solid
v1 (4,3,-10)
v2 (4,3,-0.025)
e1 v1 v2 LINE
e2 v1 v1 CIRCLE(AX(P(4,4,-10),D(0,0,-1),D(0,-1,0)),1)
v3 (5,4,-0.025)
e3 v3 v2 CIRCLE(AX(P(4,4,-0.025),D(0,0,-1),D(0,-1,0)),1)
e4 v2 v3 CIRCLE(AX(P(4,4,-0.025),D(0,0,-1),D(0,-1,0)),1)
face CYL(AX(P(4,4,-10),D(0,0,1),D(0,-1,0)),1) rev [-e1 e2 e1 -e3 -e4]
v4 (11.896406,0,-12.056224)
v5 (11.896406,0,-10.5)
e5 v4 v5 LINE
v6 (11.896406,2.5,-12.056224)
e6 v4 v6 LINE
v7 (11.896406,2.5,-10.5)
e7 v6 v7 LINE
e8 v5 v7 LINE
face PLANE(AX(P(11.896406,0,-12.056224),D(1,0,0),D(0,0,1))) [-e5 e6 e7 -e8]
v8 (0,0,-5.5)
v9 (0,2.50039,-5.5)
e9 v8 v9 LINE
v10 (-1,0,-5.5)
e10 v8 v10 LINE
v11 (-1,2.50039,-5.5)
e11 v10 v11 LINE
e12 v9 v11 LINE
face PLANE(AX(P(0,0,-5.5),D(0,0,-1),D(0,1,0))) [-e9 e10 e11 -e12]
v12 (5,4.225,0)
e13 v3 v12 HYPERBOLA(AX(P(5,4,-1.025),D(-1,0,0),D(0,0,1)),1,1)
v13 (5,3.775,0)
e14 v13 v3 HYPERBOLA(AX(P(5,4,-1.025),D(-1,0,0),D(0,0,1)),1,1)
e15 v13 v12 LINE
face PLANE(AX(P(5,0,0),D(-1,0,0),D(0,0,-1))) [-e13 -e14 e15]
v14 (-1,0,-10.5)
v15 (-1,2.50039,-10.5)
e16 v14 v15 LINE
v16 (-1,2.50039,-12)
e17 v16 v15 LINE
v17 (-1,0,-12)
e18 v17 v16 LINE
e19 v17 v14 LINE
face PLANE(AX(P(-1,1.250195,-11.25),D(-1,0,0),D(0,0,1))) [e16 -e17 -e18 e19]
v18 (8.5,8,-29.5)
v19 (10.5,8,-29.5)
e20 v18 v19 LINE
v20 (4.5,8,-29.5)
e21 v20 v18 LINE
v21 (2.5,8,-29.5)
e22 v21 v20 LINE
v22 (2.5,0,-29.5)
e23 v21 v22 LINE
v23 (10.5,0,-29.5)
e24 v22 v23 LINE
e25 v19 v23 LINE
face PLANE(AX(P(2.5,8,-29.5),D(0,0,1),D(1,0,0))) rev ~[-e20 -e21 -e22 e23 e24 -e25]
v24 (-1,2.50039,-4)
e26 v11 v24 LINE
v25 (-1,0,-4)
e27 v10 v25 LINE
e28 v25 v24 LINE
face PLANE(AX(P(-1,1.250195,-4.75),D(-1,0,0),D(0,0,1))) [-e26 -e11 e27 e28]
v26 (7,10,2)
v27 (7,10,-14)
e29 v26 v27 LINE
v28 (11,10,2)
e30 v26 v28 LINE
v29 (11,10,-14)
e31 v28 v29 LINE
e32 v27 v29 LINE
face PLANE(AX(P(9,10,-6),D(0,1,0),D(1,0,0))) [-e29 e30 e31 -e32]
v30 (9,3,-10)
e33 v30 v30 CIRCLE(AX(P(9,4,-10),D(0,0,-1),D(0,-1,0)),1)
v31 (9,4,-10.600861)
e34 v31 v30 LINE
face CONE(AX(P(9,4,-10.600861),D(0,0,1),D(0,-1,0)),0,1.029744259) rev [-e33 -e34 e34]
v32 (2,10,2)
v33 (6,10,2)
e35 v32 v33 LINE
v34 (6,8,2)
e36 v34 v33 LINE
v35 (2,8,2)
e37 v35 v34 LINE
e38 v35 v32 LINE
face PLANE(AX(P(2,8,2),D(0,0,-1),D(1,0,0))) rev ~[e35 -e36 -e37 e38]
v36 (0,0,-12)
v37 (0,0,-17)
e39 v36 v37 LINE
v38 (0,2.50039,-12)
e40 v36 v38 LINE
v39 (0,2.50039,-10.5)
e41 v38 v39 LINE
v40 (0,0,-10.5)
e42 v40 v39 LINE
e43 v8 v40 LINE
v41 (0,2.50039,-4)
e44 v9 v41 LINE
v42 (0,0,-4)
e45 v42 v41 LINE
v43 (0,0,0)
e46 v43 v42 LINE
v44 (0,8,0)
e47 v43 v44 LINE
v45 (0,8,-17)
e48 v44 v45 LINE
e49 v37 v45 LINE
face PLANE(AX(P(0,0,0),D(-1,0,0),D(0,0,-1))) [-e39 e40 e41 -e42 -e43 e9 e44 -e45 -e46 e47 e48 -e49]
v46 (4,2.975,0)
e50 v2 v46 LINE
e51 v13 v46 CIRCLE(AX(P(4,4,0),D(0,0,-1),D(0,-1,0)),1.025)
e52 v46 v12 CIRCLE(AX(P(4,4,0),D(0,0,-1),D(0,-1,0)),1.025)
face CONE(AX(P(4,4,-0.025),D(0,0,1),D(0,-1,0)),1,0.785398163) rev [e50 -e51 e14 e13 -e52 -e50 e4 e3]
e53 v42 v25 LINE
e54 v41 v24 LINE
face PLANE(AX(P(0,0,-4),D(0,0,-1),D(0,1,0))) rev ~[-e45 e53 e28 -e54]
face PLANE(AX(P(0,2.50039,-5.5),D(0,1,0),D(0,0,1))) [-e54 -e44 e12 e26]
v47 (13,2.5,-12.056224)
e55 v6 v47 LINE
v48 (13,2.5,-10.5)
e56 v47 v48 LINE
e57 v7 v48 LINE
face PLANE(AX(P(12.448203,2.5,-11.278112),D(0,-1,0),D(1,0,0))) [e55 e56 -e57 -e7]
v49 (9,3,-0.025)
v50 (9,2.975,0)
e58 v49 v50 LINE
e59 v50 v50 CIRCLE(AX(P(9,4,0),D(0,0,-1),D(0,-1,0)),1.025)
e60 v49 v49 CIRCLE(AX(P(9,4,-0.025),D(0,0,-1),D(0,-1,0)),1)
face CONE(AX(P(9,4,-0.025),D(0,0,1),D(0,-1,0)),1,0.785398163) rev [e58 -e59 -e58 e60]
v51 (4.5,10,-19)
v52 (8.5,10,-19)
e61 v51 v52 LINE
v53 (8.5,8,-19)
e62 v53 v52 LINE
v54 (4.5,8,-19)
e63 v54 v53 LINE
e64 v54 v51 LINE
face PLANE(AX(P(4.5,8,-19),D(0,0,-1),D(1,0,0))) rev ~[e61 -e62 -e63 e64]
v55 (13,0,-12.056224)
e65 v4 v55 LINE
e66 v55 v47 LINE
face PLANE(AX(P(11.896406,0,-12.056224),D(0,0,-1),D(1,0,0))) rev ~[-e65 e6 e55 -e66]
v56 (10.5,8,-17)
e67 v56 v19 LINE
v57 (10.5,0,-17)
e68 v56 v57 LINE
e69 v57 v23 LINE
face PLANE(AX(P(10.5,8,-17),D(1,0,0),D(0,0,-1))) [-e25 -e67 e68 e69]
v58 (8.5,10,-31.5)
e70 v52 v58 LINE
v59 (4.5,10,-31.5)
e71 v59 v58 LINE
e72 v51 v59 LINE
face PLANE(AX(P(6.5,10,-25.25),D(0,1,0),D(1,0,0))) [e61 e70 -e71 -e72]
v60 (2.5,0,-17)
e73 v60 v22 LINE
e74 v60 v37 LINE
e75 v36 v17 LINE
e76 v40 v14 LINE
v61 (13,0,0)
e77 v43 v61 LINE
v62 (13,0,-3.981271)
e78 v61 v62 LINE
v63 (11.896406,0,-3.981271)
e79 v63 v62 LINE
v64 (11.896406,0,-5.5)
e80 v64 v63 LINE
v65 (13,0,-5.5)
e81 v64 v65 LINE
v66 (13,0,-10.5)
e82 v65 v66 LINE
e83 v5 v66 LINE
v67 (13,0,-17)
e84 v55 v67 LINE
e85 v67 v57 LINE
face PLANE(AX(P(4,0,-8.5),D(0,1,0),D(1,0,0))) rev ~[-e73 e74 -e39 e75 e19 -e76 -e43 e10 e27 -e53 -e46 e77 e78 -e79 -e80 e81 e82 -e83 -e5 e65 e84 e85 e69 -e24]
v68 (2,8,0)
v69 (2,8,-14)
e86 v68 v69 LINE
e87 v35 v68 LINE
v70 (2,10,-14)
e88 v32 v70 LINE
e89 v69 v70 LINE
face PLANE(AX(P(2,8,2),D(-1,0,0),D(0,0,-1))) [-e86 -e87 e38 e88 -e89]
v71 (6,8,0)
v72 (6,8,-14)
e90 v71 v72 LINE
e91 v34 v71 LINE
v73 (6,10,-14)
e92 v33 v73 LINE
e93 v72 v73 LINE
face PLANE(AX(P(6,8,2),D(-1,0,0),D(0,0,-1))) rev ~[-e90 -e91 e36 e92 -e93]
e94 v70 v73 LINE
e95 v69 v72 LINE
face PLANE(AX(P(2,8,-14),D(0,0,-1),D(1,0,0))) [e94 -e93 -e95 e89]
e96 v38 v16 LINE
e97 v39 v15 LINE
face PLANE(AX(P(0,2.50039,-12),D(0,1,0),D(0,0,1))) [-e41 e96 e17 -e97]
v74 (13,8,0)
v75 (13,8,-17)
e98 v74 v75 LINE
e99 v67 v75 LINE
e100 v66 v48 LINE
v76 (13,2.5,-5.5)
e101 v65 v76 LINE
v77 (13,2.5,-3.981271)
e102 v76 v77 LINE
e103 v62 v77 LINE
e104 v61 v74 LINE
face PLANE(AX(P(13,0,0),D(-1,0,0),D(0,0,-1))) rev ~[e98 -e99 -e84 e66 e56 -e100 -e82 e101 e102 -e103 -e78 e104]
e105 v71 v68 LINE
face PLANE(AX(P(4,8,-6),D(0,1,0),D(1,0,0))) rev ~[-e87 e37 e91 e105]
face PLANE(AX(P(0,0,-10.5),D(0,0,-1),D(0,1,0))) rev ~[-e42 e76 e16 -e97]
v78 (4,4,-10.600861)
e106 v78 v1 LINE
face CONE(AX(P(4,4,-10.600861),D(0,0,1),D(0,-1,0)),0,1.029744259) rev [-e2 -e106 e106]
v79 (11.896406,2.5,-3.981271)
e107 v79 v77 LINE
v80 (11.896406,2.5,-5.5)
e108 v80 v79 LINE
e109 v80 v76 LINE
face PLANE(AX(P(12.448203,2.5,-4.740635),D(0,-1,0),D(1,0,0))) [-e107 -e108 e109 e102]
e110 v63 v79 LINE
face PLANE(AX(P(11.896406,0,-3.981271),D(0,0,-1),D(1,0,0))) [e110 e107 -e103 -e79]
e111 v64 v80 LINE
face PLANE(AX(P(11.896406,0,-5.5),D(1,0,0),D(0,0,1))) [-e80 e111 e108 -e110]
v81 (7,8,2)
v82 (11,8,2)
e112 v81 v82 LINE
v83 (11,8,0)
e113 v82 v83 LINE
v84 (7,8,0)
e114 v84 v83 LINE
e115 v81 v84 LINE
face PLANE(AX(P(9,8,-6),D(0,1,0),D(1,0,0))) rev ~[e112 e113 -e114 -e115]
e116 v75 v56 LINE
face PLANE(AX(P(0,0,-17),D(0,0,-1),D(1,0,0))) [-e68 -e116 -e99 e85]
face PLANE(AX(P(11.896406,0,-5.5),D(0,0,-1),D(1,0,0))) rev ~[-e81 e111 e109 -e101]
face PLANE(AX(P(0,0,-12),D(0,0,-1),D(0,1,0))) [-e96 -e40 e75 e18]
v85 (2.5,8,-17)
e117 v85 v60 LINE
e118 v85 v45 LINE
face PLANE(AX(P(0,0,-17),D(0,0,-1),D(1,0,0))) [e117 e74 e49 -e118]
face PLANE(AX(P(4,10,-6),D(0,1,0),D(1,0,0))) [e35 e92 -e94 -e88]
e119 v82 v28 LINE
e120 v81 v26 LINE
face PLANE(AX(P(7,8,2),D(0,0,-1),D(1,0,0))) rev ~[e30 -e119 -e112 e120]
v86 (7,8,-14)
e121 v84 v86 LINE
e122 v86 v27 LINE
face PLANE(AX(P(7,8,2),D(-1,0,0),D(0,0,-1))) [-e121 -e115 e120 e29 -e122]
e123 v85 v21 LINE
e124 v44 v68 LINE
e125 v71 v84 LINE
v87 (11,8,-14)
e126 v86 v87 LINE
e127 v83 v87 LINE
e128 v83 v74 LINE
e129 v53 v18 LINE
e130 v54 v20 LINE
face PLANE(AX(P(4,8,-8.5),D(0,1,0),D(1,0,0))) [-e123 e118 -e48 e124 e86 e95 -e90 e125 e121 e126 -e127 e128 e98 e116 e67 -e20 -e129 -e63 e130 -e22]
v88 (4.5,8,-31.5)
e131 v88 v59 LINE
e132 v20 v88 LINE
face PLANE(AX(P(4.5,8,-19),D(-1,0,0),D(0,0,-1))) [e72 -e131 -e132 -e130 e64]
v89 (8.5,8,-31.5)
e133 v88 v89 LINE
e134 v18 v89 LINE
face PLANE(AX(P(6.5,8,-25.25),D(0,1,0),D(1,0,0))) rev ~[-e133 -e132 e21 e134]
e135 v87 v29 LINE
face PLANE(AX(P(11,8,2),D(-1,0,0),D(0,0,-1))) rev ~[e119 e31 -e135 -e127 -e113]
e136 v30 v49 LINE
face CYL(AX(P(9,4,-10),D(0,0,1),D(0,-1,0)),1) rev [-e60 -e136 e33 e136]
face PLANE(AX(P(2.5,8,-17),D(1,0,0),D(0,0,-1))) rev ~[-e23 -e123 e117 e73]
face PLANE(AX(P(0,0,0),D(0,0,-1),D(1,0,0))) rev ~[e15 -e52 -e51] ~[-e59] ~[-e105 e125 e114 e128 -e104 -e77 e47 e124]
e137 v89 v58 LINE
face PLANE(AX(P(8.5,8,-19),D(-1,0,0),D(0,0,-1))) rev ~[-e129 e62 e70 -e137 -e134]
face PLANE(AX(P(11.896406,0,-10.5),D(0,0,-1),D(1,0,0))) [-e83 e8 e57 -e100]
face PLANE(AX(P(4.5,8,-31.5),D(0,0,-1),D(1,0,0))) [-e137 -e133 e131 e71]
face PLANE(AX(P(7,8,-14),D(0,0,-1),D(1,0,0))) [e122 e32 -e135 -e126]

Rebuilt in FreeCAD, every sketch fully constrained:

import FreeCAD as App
import Part
import Sketcher

V = App.Vector
Q = App.Units.Quantity

doc = App.newDocument("Part")
body = doc.addObject("PartDesign::Body", "Body")

sketch1 = body.newObject("Sketcher::SketchObject", "Sketch")
sketch1.AttachmentSupport = (doc.getObject("XZ_Plane"), [""])
sketch1.MapMode = "FlatFace"
sketch1.addGeometry(Part.LineSegment(V(0, -17, 0), V(0, 0, 0)), False)
sketch1.addGeometry(Part.LineSegment(V(0, 0, 0), V(8, 0, 0)), False)
sketch1.addGeometry(Part.LineSegment(V(8, 0, 0), V(8, -17, 0)), False)
sketch1.addGeometry(Part.LineSegment(V(8, -17, 0), V(0, -17, 0)), False)
sketch1.addConstraint(Sketcher.Constraint("Coincident", 0, 2, 1, 1))
sketch1.addConstraint(Sketcher.Constraint("Coincident", 1, 2, 2, 1))
sketch1.addConstraint(Sketcher.Constraint("Coincident", 2, 2, 3, 1))
sketch1.addConstraint(Sketcher.Constraint("Coincident", 3, 2, 0, 1))
sketch1.addConstraint(Sketcher.Constraint("Vertical", 0))
sketch1.addConstraint(Sketcher.Constraint("Horizontal", 1))
sketch1.addConstraint(Sketcher.Constraint("Vertical", 2))
sketch1.addConstraint(Sketcher.Constraint("Horizontal", 3))
sketch1.addConstraint(Sketcher.Constraint("Coincident", 0, 2, -1, 1))
sketch1.addConstraint(Sketcher.Constraint("DistanceX", 1, 1, 1, 2, Q("8 mm")))
sketch1.addConstraint(Sketcher.Constraint("DistanceY", 0, 1, 0, 2, Q("17 mm")))
pad1 = body.newObject("PartDesign::Pad", "Pad")
pad1.Profile = sketch1
pad1.Length = 8
pad1.Reversed = True

sketch2 = body.newObject("Sketcher::SketchObject", "Sketch001")
sketch2.AttachmentSupport = (doc.getObject("YZ_Plane"), [""])
sketch2.MapMode = "FlatFace"
sketch2.AttachmentOffset = App.Placement(V(0, 0, 4), App.Rotation())
sketch2.addGeometry(Part.LineSegment(V(4, -10.601, 0), V(4, 0, 0)), False)
sketch2.addGeometry(Part.LineSegment(V(4, 0, 0), V(2.975, 0, 0)), False)
sketch2.addGeometry(Part.LineSegment(V(2.975, 0, 0), V(3, -0.025, 0)), False)
sketch2.addGeometry(Part.LineSegment(V(3, -0.025, 0), V(3, -10, 0)), False)
sketch2.addGeometry(Part.LineSegment(V(3, -10, 0), V(4, -10.601, 0)), False)
sketch2.addGeometry(Part.LineSegment(V(4, 0, 0), V(4, -10.601, 0)), True)
sketch2.addConstraint(Sketcher.Constraint("Coincident", 0, 2, 1, 1))
sketch2.addConstraint(Sketcher.Constraint("Coincident", 1, 2, 2, 1))
sketch2.addConstraint(Sketcher.Constraint("Coincident", 2, 2, 3, 1))
sketch2.addConstraint(Sketcher.Constraint("Coincident", 3, 2, 4, 1))
sketch2.addConstraint(Sketcher.Constraint("Coincident", 4, 2, 0, 1))
sketch2.addConstraint(Sketcher.Constraint("Vertical", 0))
sketch2.addConstraint(Sketcher.Constraint("Horizontal", 1))
sketch2.addConstraint(Sketcher.Constraint("Vertical", 3))
sketch2.addConstraint(Sketcher.Constraint("Vertical", 5))
sketch2.addConstraint(Sketcher.Constraint("Coincident", 5, 1, 0, 2))
sketch2.addConstraint(Sketcher.Constraint("PointOnObject", 0, 2, -1))
sketch2.addConstraint(Sketcher.Constraint("Equal", 0, 5))
sketch2.addConstraint(Sketcher.Constraint("Angle", 2, Q("-45 deg")))
sketch2.addConstraint(Sketcher.Constraint("Angle", 4, Q("-31 deg")))
sketch2.addConstraint(Sketcher.Constraint("DistanceX", -1, 1, 0, 2, Q("4 mm")))
sketch2.addConstraint(Sketcher.Constraint("DistanceX", -1, 1, 2, 2, Q("3 mm")))
sketch2.addConstraint(Sketcher.Constraint("DistanceY", 3, 2, -1, 1, Q("10 mm")))
sketch2.addConstraint(Sketcher.Constraint("DistanceX", 1, 2, 1, 1, Q("1.025 mm")))
groove = body.newObject("PartDesign::Groove", "Groove")
groove.Profile = sketch2
groove.ReferenceAxis = (sketch2, ["Axis0"])
groove.Angle = 360

sketch3 = body.newObject("Sketcher::SketchObject", "Sketch002")
sketch3.AttachmentSupport = (doc.getObject("XZ_Plane"), [""])
sketch3.MapMode = "FlatFace"
sketch3.AttachmentOffset = App.Placement(V(0, 0, -8), App.Rotation())
sketch3.addGeometry(Part.LineSegment(V(2, -14, 0), V(2, 2, 0)), False)
sketch3.addGeometry(Part.LineSegment(V(2, 2, 0), V(6, 2, 0)), False)
sketch3.addGeometry(Part.LineSegment(V(6, 2, 0), V(6, -14, 0)), False)
sketch3.addGeometry(Part.LineSegment(V(6, -14, 0), V(2, -14, 0)), False)
sketch3.addConstraint(Sketcher.Constraint("Coincident", 0, 2, 1, 1))
sketch3.addConstraint(Sketcher.Constraint("Coincident", 1, 2, 2, 1))
sketch3.addConstraint(Sketcher.Constraint("Coincident", 2, 2, 3, 1))
sketch3.addConstraint(Sketcher.Constraint("Coincident", 3, 2, 0, 1))
sketch3.addConstraint(Sketcher.Constraint("Vertical", 0))
sketch3.addConstraint(Sketcher.Constraint("Horizontal", 1))
sketch3.addConstraint(Sketcher.Constraint("Vertical", 2))
sketch3.addConstraint(Sketcher.Constraint("Horizontal", 3))
sketch3.addConstraint(Sketcher.Constraint("DistanceX", 1, 1, 1, 2, Q("4 mm")))
sketch3.addConstraint(Sketcher.Constraint("DistanceY", 0, 1, 0, 2, Q("16 mm")))
sketch3.addConstraint(Sketcher.Constraint("DistanceX", -1, 1, 0, 2, Q("2 mm")))
sketch3.addConstraint(Sketcher.Constraint("DistanceY", -1, 1, 0, 2, Q("2 mm")))
pad2 = body.newObject("PartDesign::Pad", "Pad001")
pad2.Profile = sketch3
pad2.Length = 2
pad2.Reversed = True
doc.recompute()

linearpattern = body.newObject("PartDesign::LinearPattern", "LinearPattern")
linearpattern.Originals = [pad1, groove, pad2]
linearpattern.Direction = (doc.getObject("X_Axis"), [""])
linearpattern.Mode = "offset"
linearpattern.Offset = 5
linearpattern.Occurrences = 2
body.Tip = linearpattern

sketch4 = body.newObject("Sketcher::SketchObject", "Sketch003")
sketch4.AttachmentSupport = (doc.getObject("XZ_Plane"), [""])
sketch4.MapMode = "FlatFace"
sketch4.AttachmentOffset = App.Placement(V(0, 0, -8), App.Rotation())
sketch4.addGeometry(Part.LineSegment(V(2, -30, 0), V(2, -17, 0)), False)
sketch4.addGeometry(Part.LineSegment(V(2, -17, 0), V(10, -17, 0)), False)
sketch4.addGeometry(Part.LineSegment(V(10, -17, 0), V(10, -30, 0)), False)
sketch4.addGeometry(Part.LineSegment(V(10, -30, 0), V(2, -30, 0)), False)
sketch4.addConstraint(Sketcher.Constraint("Coincident", 0, 2, 1, 1))
sketch4.addConstraint(Sketcher.Constraint("Coincident", 1, 2, 2, 1))
sketch4.addConstraint(Sketcher.Constraint("Coincident", 2, 2, 3, 1))
sketch4.addConstraint(Sketcher.Constraint("Coincident", 3, 2, 0, 1))
sketch4.addConstraint(Sketcher.Constraint("Vertical", 0))
sketch4.addConstraint(Sketcher.Constraint("Horizontal", 1))
sketch4.addConstraint(Sketcher.Constraint("Vertical", 2))
sketch4.addConstraint(Sketcher.Constraint("Horizontal", 3))
sketch4.addConstraint(Sketcher.Constraint("DistanceX", 1, 1, 1, 2, Q("8 mm")))
sketch4.addConstraint(Sketcher.Constraint("DistanceY", 0, 1, 0, 2, Q("12.5 mm")))
sketch4.addConstraint(Sketcher.Constraint("DistanceY", 0, 2, -1, 1, Q("17 mm")))
sketch4.addConstraint(Sketcher.Constraint("DistanceX", -1, 1, 0, 2, Q("2.5 mm")))
pad3 = body.newObject("PartDesign::Pad", "Pad002")
pad3.Profile = sketch4
pad3.Length = 8

sketch5 = body.newObject("Sketcher::SketchObject", "Sketch004")
sketch5.AttachmentSupport = (doc.getObject("YZ_Plane"), [""])
sketch5.MapMode = "FlatFace"
sketch5.addGeometry(Part.LineSegment(V(2.5, -12, 0), V(0, -12, 0)), False)
sketch5.addGeometry(Part.LineSegment(V(0, -12, 0), V(0, -10.5, 0)), False)
sketch5.addGeometry(Part.LineSegment(V(0, -10.5, 0), V(2.5, -10.5, 0)), False)
sketch5.addGeometry(Part.LineSegment(V(2.5, -10.5, 0), V(2.5, -12, 0)), False)
sketch5.addGeometry(Part.LineSegment(V(2.5, -5.5, 0), V(0, -5.5, 0)), False)
sketch5.addGeometry(Part.LineSegment(V(0, -5.5, 0), V(0, -4, 0)), False)
sketch5.addGeometry(Part.LineSegment(V(0, -4, 0), V(2.5, -4, 0)), False)
sketch5.addGeometry(Part.LineSegment(V(2.5, -4, 0), V(2.5, -5.5, 0)), False)
sketch5.addConstraint(Sketcher.Constraint("Coincident", 0, 2, 1, 1))
sketch5.addConstraint(Sketcher.Constraint("Coincident", 1, 2, 2, 1))
sketch5.addConstraint(Sketcher.Constraint("Coincident", 2, 2, 3, 1))
sketch5.addConstraint(Sketcher.Constraint("Coincident", 3, 2, 0, 1))
sketch5.addConstraint(Sketcher.Constraint("Coincident", 4, 2, 5, 1))
sketch5.addConstraint(Sketcher.Constraint("Coincident", 5, 2, 6, 1))
sketch5.addConstraint(Sketcher.Constraint("Coincident", 6, 2, 7, 1))
sketch5.addConstraint(Sketcher.Constraint("Coincident", 7, 2, 4, 1))
sketch5.addConstraint(Sketcher.Constraint("Horizontal", 0))
sketch5.addConstraint(Sketcher.Constraint("Vertical", 1))
sketch5.addConstraint(Sketcher.Constraint("Horizontal", 2))
sketch5.addConstraint(Sketcher.Constraint("Vertical", 3))
sketch5.addConstraint(Sketcher.Constraint("Horizontal", 4))
sketch5.addConstraint(Sketcher.Constraint("Vertical", 5))
sketch5.addConstraint(Sketcher.Constraint("Horizontal", 6))
sketch5.addConstraint(Sketcher.Constraint("Vertical", 7))
sketch5.addConstraint(Sketcher.Constraint("PointOnObject", 0, 2, -2))
sketch5.addConstraint(Sketcher.Constraint("PointOnObject", 4, 2, -2))
sketch5.addConstraint(Sketcher.Constraint("Vertical", 3, 2, 6, 2))
sketch5.addConstraint(Sketcher.Constraint("Equal", 3, 5))
sketch5.addConstraint(Sketcher.Constraint("DistanceY", 1, 1, 1, 2, Q("1.5 mm")))
sketch5.addConstraint(Sketcher.Constraint("DistanceY", 0, 2, -1, 1, Q("12 mm")))
sketch5.addConstraint(Sketcher.Constraint("DistanceY", 5, 2, -1, 1, Q("4 mm")))
sketch5.addConstraint(Sketcher.Constraint("DistanceX", 0, 2, 0, 1, Q("2.50039 mm")))
pad4 = body.newObject("PartDesign::Pad", "Pad003")
pad4.Profile = sketch5
pad4.Length = 1
pad4.Reversed = True

sketch6 = body.newObject("Sketcher::SketchObject", "Sketch005")
sketch6.AttachmentSupport = (doc.getObject("XZ_Plane"), [""])
sketch6.MapMode = "FlatFace"
sketch6.addGeometry(Part.LineSegment(V(11.9, -4, 0), V(11.9, -5.5, 0)), False)
sketch6.addGeometry(Part.LineSegment(V(11.9, -5.5, 0), V(13, -5.5, 0)), False)
sketch6.addGeometry(Part.LineSegment(V(13, -5.5, 0), V(13, -4, 0)), False)
sketch6.addGeometry(Part.LineSegment(V(13, -4, 0), V(11.9, -4, 0)), False)
sketch6.addGeometry(Part.LineSegment(V(11.9, -10.5, 0), V(11.9, -12.1, 0)), False)
sketch6.addGeometry(Part.LineSegment(V(11.9, -12.1, 0), V(13, -12.1, 0)), False)
sketch6.addGeometry(Part.LineSegment(V(13, -12.1, 0), V(13, -10.5, 0)), False)
sketch6.addGeometry(Part.LineSegment(V(13, -10.5, 0), V(11.9, -10.5, 0)), False)
sketch6.addConstraint(Sketcher.Constraint("Coincident", 0, 2, 1, 1))
sketch6.addConstraint(Sketcher.Constraint("Coincident", 1, 2, 2, 1))
sketch6.addConstraint(Sketcher.Constraint("Coincident", 2, 2, 3, 1))
sketch6.addConstraint(Sketcher.Constraint("Coincident", 3, 2, 0, 1))
sketch6.addConstraint(Sketcher.Constraint("Coincident", 4, 2, 5, 1))
sketch6.addConstraint(Sketcher.Constraint("Coincident", 5, 2, 6, 1))
sketch6.addConstraint(Sketcher.Constraint("Coincident", 6, 2, 7, 1))
sketch6.addConstraint(Sketcher.Constraint("Coincident", 7, 2, 4, 1))
sketch6.addConstraint(Sketcher.Constraint("Vertical", 0))
sketch6.addConstraint(Sketcher.Constraint("Horizontal", 1))
sketch6.addConstraint(Sketcher.Constraint("Vertical", 2))
sketch6.addConstraint(Sketcher.Constraint("Horizontal", 3))
sketch6.addConstraint(Sketcher.Constraint("Vertical", 4))
sketch6.addConstraint(Sketcher.Constraint("Horizontal", 5))
sketch6.addConstraint(Sketcher.Constraint("Vertical", 6))
sketch6.addConstraint(Sketcher.Constraint("Horizontal", 7))
sketch6.addConstraint(Sketcher.Constraint("Vertical", 3, 2, 4, 2))
sketch6.addConstraint(Sketcher.Constraint("Vertical", 2, 2, 5, 2))
sketch6.addConstraint(Sketcher.Constraint("DistanceX", -1, 1, 1, 2, Q("13 mm")))
sketch6.addConstraint(Sketcher.Constraint("DistanceY", 6, 2, 1, 2, Q("5 mm")))
sketch6.addConstraint(Sketcher.Constraint("DistanceY", 0, 2, -1, 1, Q("5.5 mm")))
sketch6.addConstraint(Sketcher.Constraint("DistanceY", 0, 2, 0, 1, Q("1.518729 mm")))
sketch6.addConstraint(Sketcher.Constraint("DistanceX", 1, 1, 1, 2, Q("1.103594 mm")))
sketch6.addConstraint(Sketcher.Constraint("DistanceY", 4, 2, 4, 1, Q("1.556224 mm")))
pocket1 = body.newObject("PartDesign::Pocket", "Pocket")
pocket1.Profile = sketch6
pocket1.Length = 2.5

sketch7 = body.newObject("Sketcher::SketchObject", "Sketch006")
sketch7.AttachmentSupport = (doc.getObject("XZ_Plane"), [""])
sketch7.MapMode = "FlatFace"
sketch7.AttachmentOffset = App.Placement(V(0, 0, -8), App.Rotation())
sketch7.addGeometry(Part.LineSegment(V(4.5, -31.5, 0), V(4.5, -19, 0)), False)
sketch7.addGeometry(Part.LineSegment(V(4.5, -19, 0), V(8.5, -19, 0)), False)
sketch7.addGeometry(Part.LineSegment(V(8.5, -19, 0), V(8.5, -31.5, 0)), False)
sketch7.addGeometry(Part.LineSegment(V(8.5, -31.5, 0), V(4.5, -31.5, 0)), False)
sketch7.addConstraint(Sketcher.Constraint("Coincident", 0, 2, 1, 1))
sketch7.addConstraint(Sketcher.Constraint("Coincident", 1, 2, 2, 1))
sketch7.addConstraint(Sketcher.Constraint("Coincident", 2, 2, 3, 1))
sketch7.addConstraint(Sketcher.Constraint("Coincident", 3, 2, 0, 1))
sketch7.addConstraint(Sketcher.Constraint("Vertical", 0))
sketch7.addConstraint(Sketcher.Constraint("Horizontal", 1))
sketch7.addConstraint(Sketcher.Constraint("Vertical", 2))
sketch7.addConstraint(Sketcher.Constraint("Horizontal", 3))
sketch7.addConstraint(Sketcher.Constraint("DistanceX", 1, 1, 1, 2, Q("4 mm")))
sketch7.addConstraint(Sketcher.Constraint("DistanceY", 0, 1, 0, 2, Q("12.5 mm")))
sketch7.addConstraint(Sketcher.Constraint("DistanceY", 0, 2, -1, 1, Q("19 mm")))
sketch7.addConstraint(Sketcher.Constraint("DistanceX", -1, 1, 0, 2, Q("4.5 mm")))
pad5 = body.newObject("PartDesign::Pad", "Pad004")
pad5.Profile = sketch7
pad5.Length = 2
pad5.Reversed = True

doc.recompute()
